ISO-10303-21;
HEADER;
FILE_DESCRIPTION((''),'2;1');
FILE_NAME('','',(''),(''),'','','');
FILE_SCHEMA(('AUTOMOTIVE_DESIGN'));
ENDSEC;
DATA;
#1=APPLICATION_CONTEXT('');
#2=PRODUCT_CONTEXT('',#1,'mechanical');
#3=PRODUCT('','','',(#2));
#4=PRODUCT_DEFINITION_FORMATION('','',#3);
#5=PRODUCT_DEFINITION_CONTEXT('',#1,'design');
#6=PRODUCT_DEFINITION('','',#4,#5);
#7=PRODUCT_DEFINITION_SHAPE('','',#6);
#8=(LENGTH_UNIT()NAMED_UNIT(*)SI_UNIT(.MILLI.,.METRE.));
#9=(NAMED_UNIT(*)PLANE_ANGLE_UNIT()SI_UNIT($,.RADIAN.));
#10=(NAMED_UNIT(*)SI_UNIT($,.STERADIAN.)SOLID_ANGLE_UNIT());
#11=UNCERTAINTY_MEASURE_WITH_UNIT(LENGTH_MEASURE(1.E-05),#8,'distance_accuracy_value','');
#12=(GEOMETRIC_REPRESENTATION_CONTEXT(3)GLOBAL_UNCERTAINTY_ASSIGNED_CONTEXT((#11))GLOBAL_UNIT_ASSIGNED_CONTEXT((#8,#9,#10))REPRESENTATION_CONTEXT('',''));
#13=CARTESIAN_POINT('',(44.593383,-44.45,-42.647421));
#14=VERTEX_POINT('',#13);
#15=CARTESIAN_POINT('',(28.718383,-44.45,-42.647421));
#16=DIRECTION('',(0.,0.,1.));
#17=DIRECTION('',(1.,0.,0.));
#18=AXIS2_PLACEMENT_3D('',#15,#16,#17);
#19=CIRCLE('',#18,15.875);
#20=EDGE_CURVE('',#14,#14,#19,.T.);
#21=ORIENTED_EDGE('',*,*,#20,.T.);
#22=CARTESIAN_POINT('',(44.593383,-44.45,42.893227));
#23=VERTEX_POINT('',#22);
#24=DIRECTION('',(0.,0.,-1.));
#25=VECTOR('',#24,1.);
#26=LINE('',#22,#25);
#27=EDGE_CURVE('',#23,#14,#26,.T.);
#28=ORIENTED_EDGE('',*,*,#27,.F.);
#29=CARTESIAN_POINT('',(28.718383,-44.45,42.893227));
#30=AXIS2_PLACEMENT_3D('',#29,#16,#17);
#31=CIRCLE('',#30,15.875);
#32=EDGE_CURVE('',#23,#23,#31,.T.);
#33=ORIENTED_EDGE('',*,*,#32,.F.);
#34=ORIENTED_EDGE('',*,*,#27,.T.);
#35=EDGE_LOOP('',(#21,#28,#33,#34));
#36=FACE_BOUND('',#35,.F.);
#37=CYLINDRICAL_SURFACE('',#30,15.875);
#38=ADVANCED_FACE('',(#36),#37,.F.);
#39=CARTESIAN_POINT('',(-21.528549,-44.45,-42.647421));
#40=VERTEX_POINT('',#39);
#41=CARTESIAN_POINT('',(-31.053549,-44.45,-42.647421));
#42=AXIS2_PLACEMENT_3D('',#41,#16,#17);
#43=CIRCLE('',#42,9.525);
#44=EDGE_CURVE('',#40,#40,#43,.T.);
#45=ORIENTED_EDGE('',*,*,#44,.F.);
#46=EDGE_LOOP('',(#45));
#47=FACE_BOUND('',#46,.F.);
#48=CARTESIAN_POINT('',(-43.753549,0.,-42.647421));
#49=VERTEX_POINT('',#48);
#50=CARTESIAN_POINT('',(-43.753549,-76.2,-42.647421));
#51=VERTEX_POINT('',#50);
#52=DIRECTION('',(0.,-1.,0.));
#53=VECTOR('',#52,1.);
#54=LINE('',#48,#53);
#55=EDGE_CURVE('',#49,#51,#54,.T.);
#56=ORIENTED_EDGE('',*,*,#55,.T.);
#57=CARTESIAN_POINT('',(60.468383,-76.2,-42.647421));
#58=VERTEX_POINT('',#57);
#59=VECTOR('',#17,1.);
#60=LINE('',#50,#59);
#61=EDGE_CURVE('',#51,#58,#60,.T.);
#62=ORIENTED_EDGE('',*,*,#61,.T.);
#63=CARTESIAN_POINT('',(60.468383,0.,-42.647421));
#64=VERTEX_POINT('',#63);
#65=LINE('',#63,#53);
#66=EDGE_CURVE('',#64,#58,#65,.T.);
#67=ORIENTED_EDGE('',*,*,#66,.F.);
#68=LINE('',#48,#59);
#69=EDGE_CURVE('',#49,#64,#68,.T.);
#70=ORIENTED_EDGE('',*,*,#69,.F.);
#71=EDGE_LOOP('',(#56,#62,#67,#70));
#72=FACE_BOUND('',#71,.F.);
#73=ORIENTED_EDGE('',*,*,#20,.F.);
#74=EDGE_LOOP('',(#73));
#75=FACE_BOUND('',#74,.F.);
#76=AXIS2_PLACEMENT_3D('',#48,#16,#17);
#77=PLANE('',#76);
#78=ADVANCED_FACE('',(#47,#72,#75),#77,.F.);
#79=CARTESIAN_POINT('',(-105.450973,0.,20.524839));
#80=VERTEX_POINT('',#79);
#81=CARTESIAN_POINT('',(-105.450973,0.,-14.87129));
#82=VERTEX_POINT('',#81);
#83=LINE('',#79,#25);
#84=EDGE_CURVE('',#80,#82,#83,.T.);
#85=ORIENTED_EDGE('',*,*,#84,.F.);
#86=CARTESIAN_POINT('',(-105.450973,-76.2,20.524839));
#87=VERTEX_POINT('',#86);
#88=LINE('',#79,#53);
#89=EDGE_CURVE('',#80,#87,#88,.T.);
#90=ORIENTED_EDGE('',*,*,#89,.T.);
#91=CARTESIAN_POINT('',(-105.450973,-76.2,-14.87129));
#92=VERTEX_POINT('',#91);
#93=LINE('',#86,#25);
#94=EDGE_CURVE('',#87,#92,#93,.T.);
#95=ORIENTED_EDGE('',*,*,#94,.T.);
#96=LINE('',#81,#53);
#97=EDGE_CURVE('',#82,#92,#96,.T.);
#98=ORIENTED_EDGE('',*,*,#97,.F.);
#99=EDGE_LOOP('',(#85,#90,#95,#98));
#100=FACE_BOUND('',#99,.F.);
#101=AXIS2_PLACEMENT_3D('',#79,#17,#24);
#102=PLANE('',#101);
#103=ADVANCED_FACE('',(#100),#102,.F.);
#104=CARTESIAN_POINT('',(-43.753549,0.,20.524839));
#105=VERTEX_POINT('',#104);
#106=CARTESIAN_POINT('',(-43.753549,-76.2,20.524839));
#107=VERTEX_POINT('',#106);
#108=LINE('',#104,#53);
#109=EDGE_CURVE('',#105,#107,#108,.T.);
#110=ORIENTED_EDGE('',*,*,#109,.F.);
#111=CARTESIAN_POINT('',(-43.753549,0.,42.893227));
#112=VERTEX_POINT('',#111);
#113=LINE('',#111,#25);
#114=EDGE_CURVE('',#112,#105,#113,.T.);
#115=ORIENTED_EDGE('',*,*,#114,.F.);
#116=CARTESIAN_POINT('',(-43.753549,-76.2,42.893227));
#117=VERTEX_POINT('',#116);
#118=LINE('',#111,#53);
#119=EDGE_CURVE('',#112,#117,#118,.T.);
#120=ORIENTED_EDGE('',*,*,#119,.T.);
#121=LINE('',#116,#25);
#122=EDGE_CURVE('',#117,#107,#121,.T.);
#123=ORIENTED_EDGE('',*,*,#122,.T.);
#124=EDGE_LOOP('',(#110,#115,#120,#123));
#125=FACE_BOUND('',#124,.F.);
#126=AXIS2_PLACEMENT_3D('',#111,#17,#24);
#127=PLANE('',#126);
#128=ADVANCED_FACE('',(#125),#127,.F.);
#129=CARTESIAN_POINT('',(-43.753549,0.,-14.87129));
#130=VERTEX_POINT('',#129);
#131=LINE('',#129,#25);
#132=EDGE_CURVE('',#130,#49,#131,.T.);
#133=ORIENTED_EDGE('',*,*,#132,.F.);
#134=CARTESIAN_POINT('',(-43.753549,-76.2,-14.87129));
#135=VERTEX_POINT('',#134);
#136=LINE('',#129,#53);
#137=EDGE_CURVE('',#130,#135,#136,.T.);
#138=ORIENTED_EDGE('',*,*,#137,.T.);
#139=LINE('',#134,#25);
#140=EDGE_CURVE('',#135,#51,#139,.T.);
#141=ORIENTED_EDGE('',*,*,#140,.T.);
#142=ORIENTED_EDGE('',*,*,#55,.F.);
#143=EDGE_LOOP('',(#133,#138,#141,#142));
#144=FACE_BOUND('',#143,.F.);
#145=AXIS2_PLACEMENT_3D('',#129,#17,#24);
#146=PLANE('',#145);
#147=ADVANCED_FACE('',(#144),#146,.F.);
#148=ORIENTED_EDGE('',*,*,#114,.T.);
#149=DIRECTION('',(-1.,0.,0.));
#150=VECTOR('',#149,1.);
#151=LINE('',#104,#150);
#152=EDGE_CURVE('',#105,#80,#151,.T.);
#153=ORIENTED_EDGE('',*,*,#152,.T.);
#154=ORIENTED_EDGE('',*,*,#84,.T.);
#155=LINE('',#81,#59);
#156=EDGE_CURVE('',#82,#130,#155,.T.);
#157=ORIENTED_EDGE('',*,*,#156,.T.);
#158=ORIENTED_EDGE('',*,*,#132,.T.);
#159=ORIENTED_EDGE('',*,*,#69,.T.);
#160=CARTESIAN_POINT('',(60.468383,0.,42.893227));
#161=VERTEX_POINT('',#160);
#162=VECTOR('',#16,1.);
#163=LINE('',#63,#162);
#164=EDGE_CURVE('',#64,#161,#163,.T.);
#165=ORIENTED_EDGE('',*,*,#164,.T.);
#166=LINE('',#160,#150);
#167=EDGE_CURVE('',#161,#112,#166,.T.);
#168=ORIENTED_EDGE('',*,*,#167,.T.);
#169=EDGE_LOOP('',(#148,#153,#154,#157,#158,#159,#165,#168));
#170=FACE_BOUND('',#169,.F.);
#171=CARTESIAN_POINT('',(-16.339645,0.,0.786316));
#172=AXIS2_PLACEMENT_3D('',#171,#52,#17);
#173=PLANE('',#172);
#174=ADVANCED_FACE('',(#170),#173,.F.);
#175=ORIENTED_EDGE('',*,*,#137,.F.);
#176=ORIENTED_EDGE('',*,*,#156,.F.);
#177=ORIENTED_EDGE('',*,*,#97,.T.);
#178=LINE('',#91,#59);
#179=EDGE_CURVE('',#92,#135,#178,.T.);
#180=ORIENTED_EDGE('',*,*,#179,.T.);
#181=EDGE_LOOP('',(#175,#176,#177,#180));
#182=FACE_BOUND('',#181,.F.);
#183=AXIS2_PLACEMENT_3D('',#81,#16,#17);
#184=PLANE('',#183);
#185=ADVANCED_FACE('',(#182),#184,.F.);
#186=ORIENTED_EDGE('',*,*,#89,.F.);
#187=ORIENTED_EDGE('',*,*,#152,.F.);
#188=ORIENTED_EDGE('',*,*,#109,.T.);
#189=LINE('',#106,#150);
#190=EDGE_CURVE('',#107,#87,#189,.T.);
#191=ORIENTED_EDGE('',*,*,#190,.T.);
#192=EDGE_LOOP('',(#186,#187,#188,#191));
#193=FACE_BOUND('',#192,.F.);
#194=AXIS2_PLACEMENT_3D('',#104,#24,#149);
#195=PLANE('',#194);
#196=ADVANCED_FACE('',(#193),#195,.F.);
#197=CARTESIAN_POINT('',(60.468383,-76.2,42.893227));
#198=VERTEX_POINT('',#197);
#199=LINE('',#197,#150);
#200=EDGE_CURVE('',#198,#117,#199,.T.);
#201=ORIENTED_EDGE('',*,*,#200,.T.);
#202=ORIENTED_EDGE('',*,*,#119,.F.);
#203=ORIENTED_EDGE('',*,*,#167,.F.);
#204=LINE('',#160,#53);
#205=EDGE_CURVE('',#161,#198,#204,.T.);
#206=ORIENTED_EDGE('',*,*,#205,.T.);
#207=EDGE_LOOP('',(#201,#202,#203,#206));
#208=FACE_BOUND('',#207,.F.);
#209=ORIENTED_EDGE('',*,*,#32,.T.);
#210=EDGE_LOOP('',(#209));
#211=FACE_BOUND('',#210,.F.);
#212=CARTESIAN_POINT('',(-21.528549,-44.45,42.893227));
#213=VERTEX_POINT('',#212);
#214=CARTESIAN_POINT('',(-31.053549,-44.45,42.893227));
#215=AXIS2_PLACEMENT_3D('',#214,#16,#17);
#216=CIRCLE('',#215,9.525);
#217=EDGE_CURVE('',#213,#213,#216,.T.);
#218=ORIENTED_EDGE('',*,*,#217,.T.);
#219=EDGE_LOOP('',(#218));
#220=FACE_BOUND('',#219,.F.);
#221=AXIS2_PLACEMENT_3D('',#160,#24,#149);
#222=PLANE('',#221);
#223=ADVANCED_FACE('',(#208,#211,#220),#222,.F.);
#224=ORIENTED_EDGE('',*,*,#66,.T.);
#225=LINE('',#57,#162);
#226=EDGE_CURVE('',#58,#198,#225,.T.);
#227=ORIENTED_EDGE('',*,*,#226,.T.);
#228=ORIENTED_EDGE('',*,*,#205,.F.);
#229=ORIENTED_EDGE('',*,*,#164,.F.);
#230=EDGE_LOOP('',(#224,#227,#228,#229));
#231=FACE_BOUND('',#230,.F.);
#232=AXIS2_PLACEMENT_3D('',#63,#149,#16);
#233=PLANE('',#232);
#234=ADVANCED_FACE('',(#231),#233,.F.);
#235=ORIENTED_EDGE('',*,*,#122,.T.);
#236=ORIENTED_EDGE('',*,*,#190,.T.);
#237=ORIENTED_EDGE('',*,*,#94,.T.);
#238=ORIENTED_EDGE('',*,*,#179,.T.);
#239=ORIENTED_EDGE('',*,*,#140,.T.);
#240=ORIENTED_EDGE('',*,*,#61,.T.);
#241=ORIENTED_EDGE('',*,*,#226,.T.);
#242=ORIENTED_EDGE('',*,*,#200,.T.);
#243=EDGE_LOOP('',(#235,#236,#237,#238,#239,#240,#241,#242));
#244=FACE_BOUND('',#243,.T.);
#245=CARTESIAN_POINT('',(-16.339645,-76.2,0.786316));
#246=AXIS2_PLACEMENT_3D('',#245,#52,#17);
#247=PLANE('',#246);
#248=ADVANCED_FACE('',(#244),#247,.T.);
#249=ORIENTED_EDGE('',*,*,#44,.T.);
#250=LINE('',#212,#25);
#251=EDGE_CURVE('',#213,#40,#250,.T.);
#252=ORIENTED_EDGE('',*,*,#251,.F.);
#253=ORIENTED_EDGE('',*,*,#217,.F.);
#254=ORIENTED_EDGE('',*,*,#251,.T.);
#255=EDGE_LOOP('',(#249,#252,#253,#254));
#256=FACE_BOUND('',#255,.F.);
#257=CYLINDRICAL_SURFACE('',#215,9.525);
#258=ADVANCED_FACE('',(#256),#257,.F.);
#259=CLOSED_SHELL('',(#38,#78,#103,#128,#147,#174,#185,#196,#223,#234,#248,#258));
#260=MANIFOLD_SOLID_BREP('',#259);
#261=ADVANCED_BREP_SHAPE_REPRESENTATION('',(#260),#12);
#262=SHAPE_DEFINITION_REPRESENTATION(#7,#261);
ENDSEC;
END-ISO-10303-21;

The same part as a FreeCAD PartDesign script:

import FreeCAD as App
import Part
import Sketcher
from FreeCAD import Vector
Q = App.Units.Quantity


def add_polygon(sketch, points):
    """Adds a closed chain of lines whose ends are joined by coincident constraints."""
    first, n = sketch.GeometryCount, len(points)
    for a, b in zip(points, points[1:] + points[:1]):
        sketch.addGeometry(Part.LineSegment(App.Vector(*a, 0), App.Vector(*b, 0)), False)
    for i in range(n):
        sketch.addConstraint(Sketcher.Constraint("Coincident", first + i, 2, first + (i + 1) % n, 1))

doc = App.newDocument("Part")
body = doc.addObject("PartDesign::Body", "Body")

# Sketch on XZ plane
sketch1 = doc.addObject("Sketcher::SketchObject", "Sketch")
body.addObject(sketch1)
sketch1.AttachmentSupport = (doc.XZ_Plane, [""])
sketch1.MapMode = "FlatFace"
add_polygon(sketch1, [(60, 43), (-44, 43), (-44, 21), (-105, 21), (-105, -15), (-44, -15), (-44, -43), (60, -43)])  # lines 0-7
sketch1.addConstraint(Sketcher.Constraint("Horizontal", 0))
sketch1.addConstraint(Sketcher.Constraint("Vertical", 1))
sketch1.addConstraint(Sketcher.Constraint("Horizontal", 2))
sketch1.addConstraint(Sketcher.Constraint("Vertical", 3))
sketch1.addConstraint(Sketcher.Constraint("Horizontal", 4))
sketch1.addConstraint(Sketcher.Constraint("Vertical", 5))
sketch1.addConstraint(Sketcher.Constraint("Horizontal", 6))
sketch1.addConstraint(Sketcher.Constraint("Vertical", 7))
sketch1.addConstraint(Sketcher.Constraint("Vertical", 1, 2, 4, 2))
sketch1.addConstraint(Sketcher.Constraint("DistanceY", 1, 2, 1, 1, 22.368388))
sketch1.addConstraint(Sketcher.Constraint("DistanceY", 3, 2, 3, 1, 35.396129))
sketch1.addConstraint(Sketcher.Constraint("DistanceY", 5, 2, 5, 1, 27.776131))
sketch1.addConstraint(Sketcher.Constraint("DistanceX", 0, 2, 0, 1, 104.221932))
sketch1.addConstraint(Sketcher.Constraint("DistanceX", 2, 2, 2, 1, 61.697424))
sketch1.addConstraint(Sketcher.Constraint("DistanceX", 0, 2, -1, 1, 43.753549))
sketch1.addConstraint(Sketcher.Constraint("DistanceY", -1, 1, 1, 2, 20.524839))
pad1 = doc.addObject("PartDesign::Pad", "Pad")
body.addObject(pad1)
pad1.Profile = sketch1
pad1.Length = Q("3 in")

# Sketch on XY plane
sketch2 = doc.addObject("Sketcher::SketchObject", "Sketch001")
body.addObject(sketch2)
sketch2.AttachmentSupport = (doc.XY_Plane, [""])
sketch2.MapMode = "FlatFace"
sketch2.AttachmentOffset = App.Placement(Vector(0, 0, 42.893227), App.Rotation())
sketch2.addGeometry(Part.Circle(Vector(29, -44, 0), Vector(0, 0, 1), 16), False)
sketch2.addGeometry(Part.Circle(Vector(-31, -44, 0), Vector(0, 0, 1), 10), False)
sketch2.addConstraint(Sketcher.Constraint("Horizontal", 0, 3, 1, 3))
sketch2.addConstraint(Sketcher.Constraint("Diameter", 0, Q("1.25 in")))
sketch2.addConstraint(Sketcher.Constraint("Diameter", 1, Q("0.75 in")))
sketch2.addConstraint(Sketcher.Constraint("DistanceY", 0, 3, -1, 1, Q("1.75 in")))
sketch2.addConstraint(Sketcher.Constraint("DistanceX", 1, 3, -1, 1, 31.053549))
sketch2.addConstraint(Sketcher.Constraint("DistanceX", -1, 1, 0, 3, 28.718383))
pocket1 = doc.addObject("PartDesign::Pocket", "Pocket")
body.addObject(pocket1)
pocket1.Profile = sketch2
pocket1.Type = "ThroughAll"

doc.recompute()
